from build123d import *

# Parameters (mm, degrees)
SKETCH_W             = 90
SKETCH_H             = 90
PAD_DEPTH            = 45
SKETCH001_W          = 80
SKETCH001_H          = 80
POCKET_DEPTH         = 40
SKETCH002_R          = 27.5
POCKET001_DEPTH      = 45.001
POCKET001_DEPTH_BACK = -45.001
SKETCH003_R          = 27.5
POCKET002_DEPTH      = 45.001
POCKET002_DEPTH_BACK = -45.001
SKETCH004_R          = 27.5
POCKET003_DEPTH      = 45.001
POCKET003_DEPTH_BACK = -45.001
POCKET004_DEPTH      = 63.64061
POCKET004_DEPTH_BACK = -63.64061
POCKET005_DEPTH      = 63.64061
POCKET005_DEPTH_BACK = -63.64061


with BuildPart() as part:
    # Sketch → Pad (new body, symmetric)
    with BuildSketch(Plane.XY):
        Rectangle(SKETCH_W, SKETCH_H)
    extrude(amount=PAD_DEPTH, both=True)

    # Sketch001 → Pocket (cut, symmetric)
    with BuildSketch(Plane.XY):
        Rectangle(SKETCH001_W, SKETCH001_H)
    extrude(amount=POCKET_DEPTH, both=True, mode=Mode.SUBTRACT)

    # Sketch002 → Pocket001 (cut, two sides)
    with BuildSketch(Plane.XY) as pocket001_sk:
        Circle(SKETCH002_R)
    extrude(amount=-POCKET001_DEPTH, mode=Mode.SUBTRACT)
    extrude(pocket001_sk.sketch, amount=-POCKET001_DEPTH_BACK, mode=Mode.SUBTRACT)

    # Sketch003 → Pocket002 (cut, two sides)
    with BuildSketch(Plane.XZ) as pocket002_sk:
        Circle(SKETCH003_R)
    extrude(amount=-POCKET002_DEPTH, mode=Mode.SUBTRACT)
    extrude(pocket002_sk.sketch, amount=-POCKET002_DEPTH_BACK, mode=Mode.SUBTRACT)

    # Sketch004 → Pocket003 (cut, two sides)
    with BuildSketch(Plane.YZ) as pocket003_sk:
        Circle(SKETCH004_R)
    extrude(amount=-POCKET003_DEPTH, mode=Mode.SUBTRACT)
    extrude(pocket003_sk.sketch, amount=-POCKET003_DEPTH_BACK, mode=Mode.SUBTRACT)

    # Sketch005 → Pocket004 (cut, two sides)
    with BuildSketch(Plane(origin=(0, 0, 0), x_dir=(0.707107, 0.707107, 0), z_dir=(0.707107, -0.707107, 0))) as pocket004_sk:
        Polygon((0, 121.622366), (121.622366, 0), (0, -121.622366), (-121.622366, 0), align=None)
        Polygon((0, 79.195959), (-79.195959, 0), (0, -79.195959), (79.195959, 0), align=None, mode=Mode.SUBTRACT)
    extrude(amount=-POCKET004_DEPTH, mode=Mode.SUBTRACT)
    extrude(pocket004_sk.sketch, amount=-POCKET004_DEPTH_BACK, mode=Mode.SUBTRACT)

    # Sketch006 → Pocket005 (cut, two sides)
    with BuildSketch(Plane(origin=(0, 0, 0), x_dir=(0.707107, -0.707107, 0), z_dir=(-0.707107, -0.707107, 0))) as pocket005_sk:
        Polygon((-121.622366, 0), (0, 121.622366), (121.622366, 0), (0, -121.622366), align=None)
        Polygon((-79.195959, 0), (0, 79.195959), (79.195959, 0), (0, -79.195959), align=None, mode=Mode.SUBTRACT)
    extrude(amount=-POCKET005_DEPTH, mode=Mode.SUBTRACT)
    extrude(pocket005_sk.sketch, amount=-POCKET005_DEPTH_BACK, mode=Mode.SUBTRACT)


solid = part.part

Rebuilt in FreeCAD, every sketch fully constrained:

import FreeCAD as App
import Part
import Sketcher

V = App.Vector
Q = App.Units.Quantity

doc = App.newDocument("Part")
body = doc.addObject("PartDesign::Body", "Body")

# Sketch on XY plane
sketch1 = body.newObject("Sketcher::SketchObject", "Sketch")
sketch1.AttachmentSupport = (doc.getObject("XY_Plane"), [""])
sketch1.MapMode = "FlatFace"
sketch1.addGeometry([
    Part.LineSegment(V(-45, 45, 0), V(-45, -45, 0)),
    Part.LineSegment(V(-45, -45, 0), V(45, -45, 0)),
    Part.LineSegment(V(45, -45, 0), V(45, 45, 0)),
    Part.LineSegment(V(45, 45, 0), V(-45, 45, 0)),
], False)
sketch1.addConstraint([
    Sketcher.Constraint("Coincident", 0, 2, 1, 1),
    Sketcher.Constraint("Coincident", 1, 2, 2, 1),
    Sketcher.Constraint("Coincident", 2, 2, 3, 1),
    Sketcher.Constraint("Coincident", 3, 2, 0, 1),
    Sketcher.Constraint("Vertical", 0),
    Sketcher.Constraint("Horizontal", 1),
    Sketcher.Constraint("Vertical", 2),
    Sketcher.Constraint("Horizontal", 3),
    Sketcher.Constraint("Symmetric", 0, 2, 2, 2, -1, 1),
    Sketcher.Constraint("Equal", 3, 0),
    Sketcher.Constraint("DistanceX", 1, 1, 1, 2, Q("90 mm")),
])
pad1 = body.newObject("PartDesign::Pad", "Pad")
pad1.Profile = sketch1
pad1.Length = 90
pad1.Midplane = True

# Sketch on XY plane
sketch2 = body.newObject("Sketcher::SketchObject", "Sketch001")
sketch2.AttachmentSupport = (doc.getObject("XY_Plane"), [""])
sketch2.MapMode = "FlatFace"
sketch2.addGeometry([
    Part.LineSegment(V(-40, 40, 0), V(-40, -40, 0)),
    Part.LineSegment(V(-40, -40, 0), V(40, -40, 0)),
    Part.LineSegment(V(40, -40, 0), V(40, 40, 0)),
    Part.LineSegment(V(40, 40, 0), V(-40, 40, 0)),
], False)
sketch2.addConstraint([
    Sketcher.Constraint("Coincident", 0, 2, 1, 1),
    Sketcher.Constraint("Coincident", 1, 2, 2, 1),
    Sketcher.Constraint("Coincident", 2, 2, 3, 1),
    Sketcher.Constraint("Coincident", 3, 2, 0, 1),
    Sketcher.Constraint("Vertical", 0),
    Sketcher.Constraint("Horizontal", 1),
    Sketcher.Constraint("Vertical", 2),
    Sketcher.Constraint("Horizontal", 3),
    Sketcher.Constraint("Symmetric", 0, 2, 2, 2, -1, 1),
    Sketcher.Constraint("Equal", 3, 0),
    Sketcher.Constraint("DistanceX", 1, 1, 1, 2, Q("80 mm")),
])
pocket1 = body.newObject("PartDesign::Pocket", "Pocket")
pocket1.Profile = sketch2
pocket1.Length = 80
pocket1.Midplane = True

# Sketch on XY plane
sketch3 = body.newObject("Sketcher::SketchObject", "Sketch002")
sketch3.AttachmentSupport = (doc.getObject("XY_Plane"), [""])
sketch3.MapMode = "FlatFace"
sketch3.addGeometry(Part.Circle(V(0, 0, 0), V(0, 0, 1), 28), False)
sketch3.addConstraint([
    Sketcher.Constraint("Coincident", 0, 3, -1, 1),
    Sketcher.Constraint("Diameter", 0, Q("55 mm")),
])
pocket2 = body.newObject("PartDesign::Pocket", "Pocket001")
pocket2.Profile = sketch3
pocket2.Type = "ThroughAll"
pocket2.Midplane = True

# Sketch on XZ plane
sketch4 = body.newObject("Sketcher::SketchObject", "Sketch003")
sketch4.AttachmentSupport = (doc.getObject("XZ_Plane"), [""])
sketch4.MapMode = "FlatFace"
sketch4.addGeometry(Part.Circle(V(0, 0, 0), V(0, 0, 1), 28), False)
sketch4.addConstraint([
    Sketcher.Constraint("Coincident", 0, 3, -1, 1),
    Sketcher.Constraint("Diameter", 0, Q("55 mm")),
])
pocket3 = body.newObject("PartDesign::Pocket", "Pocket002")
pocket3.Profile = sketch4
pocket3.Type = "ThroughAll"
pocket3.Midplane = True

# Sketch on YZ plane
sketch5 = body.newObject("Sketcher::SketchObject", "Sketch004")
sketch5.AttachmentSupport = (doc.getObject("YZ_Plane"), [""])
sketch5.MapMode = "FlatFace"
sketch5.addGeometry(Part.Circle(V(0, 0, 0), V(0, 0, 1), 28), False)
sketch5.addConstraint([
    Sketcher.Constraint("Coincident", 0, 3, -1, 1),
    Sketcher.Constraint("Diameter", 0, Q("55 mm")),
])
pocket4 = body.newObject("PartDesign::Pocket", "Pocket003")
pocket4.Profile = sketch5
pocket4.Type = "ThroughAll"
pocket4.Midplane = True

# Sketch on an angled plane
sketch6 = body.newObject("Sketcher::SketchObject", "Sketch005")
sketch6.Placement = App.Placement(V(0, 0, 0), App.Rotation(V(0.707106781, 0.707106781, 0), V(0, 0, 0.999999999), V(0.707106781, -0.707106781, 0), "ZXY"))
sketch6.addGeometry([
    Part.LineSegment(V(122, 0, 0), V(0, 122, 0)),  # 0
    Part.LineSegment(V(0, 122, 0), V(-122, 0, 0)),  # 1
    Part.LineSegment(V(-122, 0, 0), V(0, -122, 0)),  # 2
    Part.LineSegment(V(0, -122, 0), V(122, 0, 0)),  # 3
    Part.LineSegment(V(0, 79, 0), V(79, 0, 0)),  # 4
    Part.LineSegment(V(79, 0, 0), V(0, -79, 0)),  # 5
    Part.LineSegment(V(0, -79, 0), V(-79, 0, 0)),  # 6
    Part.LineSegment(V(-79, 0, 0), V(0, 79, 0)),  # 7
], False)
sketch6.addConstraint([
    Sketcher.Constraint("Coincident", 0, 2, 1, 1),
    Sketcher.Constraint("Coincident", 1, 2, 2, 1),
    Sketcher.Constraint("Coincident", 2, 2, 3, 1),
    Sketcher.Constraint("Coincident", 3, 2, 0, 1),
    Sketcher.Constraint("Coincident", 4, 2, 5, 1),
    Sketcher.Constraint("Coincident", 5, 2, 6, 1),
    Sketcher.Constraint("Coincident", 6, 2, 7, 1),
    Sketcher.Constraint("Coincident", 7, 2, 4, 1),
    Sketcher.Constraint("Symmetric", 0, 2, 2, 2, -1, 1),
    Sketcher.Constraint("Symmetric", 1, 2, 3, 2, -1, 1),
    Sketcher.Constraint("Symmetric", 4, 2, 6, 2, -1, 1),
    Sketcher.Constraint("Symmetric", 5, 2, 7, 2, -1, 1),
    Sketcher.Constraint("PointOnObject", 0, 2, -2),
    Sketcher.Constraint("PointOnObject", 1, 2, -1),
    Sketcher.Constraint("PointOnObject", 4, 2, -1),
    Sketcher.Constraint("PointOnObject", 5, 2, -2),
    Sketcher.Constraint("Perpendicular", 0, 1),
    Sketcher.Constraint("Perpendicular", 3, 4),
    Sketcher.Constraint("Distance", 0, Q("171.999999 mm")),
    Sketcher.Constraint("Distance", 4, Q("111.999999 mm")),
])
pocket5 = body.newObject("PartDesign::Pocket", "Pocket004")
pocket5.Profile = sketch6
pocket5.Type = "ThroughAll"
pocket5.Midplane = True

# Sketch on an angled plane
sketch7 = body.newObject("Sketcher::SketchObject", "Sketch006")
sketch7.Placement = App.Placement(V(0, 0, 0), App.Rotation(V(0.707106781, -0.707106781, 0), V(0, 0, 0.999999999), V(-0.707106781, -0.707106781, 0), "ZXY"))
sketch7.addGeometry([
    Part.LineSegment(V(0, 122, 0), V(-122, 0, 0)),  # 0
    Part.LineSegment(V(-122, 0, 0), V(0, -122, 0)),  # 1
    Part.LineSegment(V(0, -122, 0), V(122, 0, 0)),  # 2
    Part.LineSegment(V(122, 0, 0), V(0, 122, 0)),  # 3
    Part.LineSegment(V(-79, 0, 0), V(0, 79, 0)),  # 4
    Part.LineSegment(V(0, 79, 0), V(79, 0, 0)),  # 5
    Part.LineSegment(V(79, 0, 0), V(0, -79, 0)),  # 6
    Part.LineSegment(V(0, -79, 0), V(-79, 0, 0)),  # 7
], False)
sketch7.addConstraint([
    Sketcher.Constraint("Coincident", 0, 2, 1, 1),
    Sketcher.Constraint("Coincident", 1, 2, 2, 1),
    Sketcher.Constraint("Coincident", 2, 2, 3, 1),
    Sketcher.Constraint("Coincident", 3, 2, 0, 1),
    Sketcher.Constraint("Coincident", 4, 2, 5, 1),
    Sketcher.Constraint("Coincident", 5, 2, 6, 1),
    Sketcher.Constraint("Coincident", 6, 2, 7, 1),
    Sketcher.Constraint("Coincident", 7, 2, 4, 1),
    Sketcher.Constraint("Symmetric", 0, 2, 2, 2, -1, 1),
    Sketcher.Constraint("Symmetric", 1, 2, 3, 2, -1, 1),
    Sketcher.Constraint("Symmetric", 4, 2, 6, 2, -1, 1),
    Sketcher.Constraint("Symmetric", 5, 2, 7, 2, -1, 1),
    Sketcher.Constraint("PointOnObject", 0, 2, -1),
    Sketcher.Constraint("PointOnObject", 1, 2, -2),
    Sketcher.Constraint("PointOnObject", 4, 2, -2),
    Sketcher.Constraint("PointOnObject", 5, 2, -1),
    Sketcher.Constraint("Perpendicular", 0, 1),
    Sketcher.Constraint("Perpendicular", 3, 4),
    Sketcher.Constraint("Distance", 0, Q("171.999999 mm")),
    Sketcher.Constraint("Distance", 4, Q("111.999999 mm")),
])
pocket6 = body.newObject("PartDesign::Pocket", "Pocket005")
pocket6.Profile = sketch7
pocket6.Type = "ThroughAll"
pocket6.Midplane = True

doc.recompute()
